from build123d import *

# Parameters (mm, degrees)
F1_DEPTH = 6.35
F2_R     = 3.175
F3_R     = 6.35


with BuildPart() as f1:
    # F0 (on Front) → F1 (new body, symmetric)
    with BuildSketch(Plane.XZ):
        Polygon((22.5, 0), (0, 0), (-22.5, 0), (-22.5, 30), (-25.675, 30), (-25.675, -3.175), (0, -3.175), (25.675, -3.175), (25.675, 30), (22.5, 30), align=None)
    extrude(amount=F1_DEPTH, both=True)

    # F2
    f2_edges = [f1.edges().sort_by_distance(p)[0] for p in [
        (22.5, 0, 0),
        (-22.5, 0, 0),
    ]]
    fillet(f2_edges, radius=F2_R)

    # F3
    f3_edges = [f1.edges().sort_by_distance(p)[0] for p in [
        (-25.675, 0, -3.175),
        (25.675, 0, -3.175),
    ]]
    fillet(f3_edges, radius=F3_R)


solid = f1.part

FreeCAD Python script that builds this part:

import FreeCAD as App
import Part
import Sketcher
from FreeCAD import Vector


def edges_at(feature, points):
    """Names of the edges that pass closest to the given points."""
    edges = feature.Shape.Edges
    near = lambda p: min(range(len(edges)), key=lambda i: edges[i].distToShape(Part.Vertex(*p))[0])
    return sorted({f"Edge{near(p) + 1}" for p in points})


def add_polygon(sketch, points):
    """Adds a closed chain of lines whose ends are joined by coincident constraints."""
    first, n = sketch.GeometryCount, len(points)
    for a, b in zip(points, points[1:] + points[:1]):
        sketch.addGeometry(Part.LineSegment(App.Vector(*a, 0), App.Vector(*b, 0)), False)
    for i in range(n):
        sketch.addConstraint(Sketcher.Constraint("Coincident", first + i, 2, first + (i + 1) % n, 1))

doc = App.newDocument("Part")
body = doc.addObject("PartDesign::Body", "Body")

# Sketch on XZ plane
sketch1 = doc.addObject("Sketcher::SketchObject", "Sketch")
body.addObject(sketch1)
sketch1.AttachmentSupport = (doc.XZ_Plane, [""])
sketch1.MapMode = "FlatFace"
add_polygon(sketch1, [(22.5, 0), (-22.5, 0), (-22.5, 30), (-25.7, 30), (-25.7, -3.2), (25.7, -3.2), (25.7, 30), (22.5, 30)])  # lines 0-7
sketch1.addConstraint([
    Sketcher.Constraint("Horizontal", 0),
    Sketcher.Constraint("Vertical", 1),
    Sketcher.Constraint("Horizontal", 2),
    Sketcher.Constraint("Vertical", 3),
    Sketcher.Constraint("Horizontal", 4),
    Sketcher.Constraint("Vertical", 5),
    Sketcher.Constraint("Horizontal", 6),
    Sketcher.Constraint("Vertical", 7),
    Sketcher.Constraint("Symmetric", 0, 2, 7, 2, -1, 1),
    Sketcher.Constraint("Symmetric", 2, 2, 5, 2, -2),
    Sketcher.Constraint("DistanceX", 0, 2, 0, 1, 45.0),
    Sketcher.Constraint("DistanceY", 1, 1, 1, 2, 30.0),
    Sketcher.Constraint("DistanceX", 4, 1, 4, 2, 51.35),
    Sketcher.Constraint("DistanceY", 3, 2, 3, 1, 33.175),
])
pad1 = doc.addObject("PartDesign::Pad", "Pad")
body.addObject(pad1)
pad1.Profile = sketch1
pad1.Length = 12.7
pad1.Midplane = True
doc.recompute()

fillet = doc.addObject("PartDesign::Fillet", "Fillet")
body.addObject(fillet)
fillet.Base = (pad1, edges_at(pad1, [(22.5, 0, 0), (-22.5, 0, 0)]))
fillet.Radius = 3.175
doc.recompute()

fillet2 = doc.addObject("PartDesign::Fillet", "Fillet001")
body.addObject(fillet2)
fillet2.Base = (fillet, edges_at(fillet, [(-25.675, 0, -3.175), (25.675, 0, -3.175)]))
fillet2.Radius = 6.35

doc.recompute()
